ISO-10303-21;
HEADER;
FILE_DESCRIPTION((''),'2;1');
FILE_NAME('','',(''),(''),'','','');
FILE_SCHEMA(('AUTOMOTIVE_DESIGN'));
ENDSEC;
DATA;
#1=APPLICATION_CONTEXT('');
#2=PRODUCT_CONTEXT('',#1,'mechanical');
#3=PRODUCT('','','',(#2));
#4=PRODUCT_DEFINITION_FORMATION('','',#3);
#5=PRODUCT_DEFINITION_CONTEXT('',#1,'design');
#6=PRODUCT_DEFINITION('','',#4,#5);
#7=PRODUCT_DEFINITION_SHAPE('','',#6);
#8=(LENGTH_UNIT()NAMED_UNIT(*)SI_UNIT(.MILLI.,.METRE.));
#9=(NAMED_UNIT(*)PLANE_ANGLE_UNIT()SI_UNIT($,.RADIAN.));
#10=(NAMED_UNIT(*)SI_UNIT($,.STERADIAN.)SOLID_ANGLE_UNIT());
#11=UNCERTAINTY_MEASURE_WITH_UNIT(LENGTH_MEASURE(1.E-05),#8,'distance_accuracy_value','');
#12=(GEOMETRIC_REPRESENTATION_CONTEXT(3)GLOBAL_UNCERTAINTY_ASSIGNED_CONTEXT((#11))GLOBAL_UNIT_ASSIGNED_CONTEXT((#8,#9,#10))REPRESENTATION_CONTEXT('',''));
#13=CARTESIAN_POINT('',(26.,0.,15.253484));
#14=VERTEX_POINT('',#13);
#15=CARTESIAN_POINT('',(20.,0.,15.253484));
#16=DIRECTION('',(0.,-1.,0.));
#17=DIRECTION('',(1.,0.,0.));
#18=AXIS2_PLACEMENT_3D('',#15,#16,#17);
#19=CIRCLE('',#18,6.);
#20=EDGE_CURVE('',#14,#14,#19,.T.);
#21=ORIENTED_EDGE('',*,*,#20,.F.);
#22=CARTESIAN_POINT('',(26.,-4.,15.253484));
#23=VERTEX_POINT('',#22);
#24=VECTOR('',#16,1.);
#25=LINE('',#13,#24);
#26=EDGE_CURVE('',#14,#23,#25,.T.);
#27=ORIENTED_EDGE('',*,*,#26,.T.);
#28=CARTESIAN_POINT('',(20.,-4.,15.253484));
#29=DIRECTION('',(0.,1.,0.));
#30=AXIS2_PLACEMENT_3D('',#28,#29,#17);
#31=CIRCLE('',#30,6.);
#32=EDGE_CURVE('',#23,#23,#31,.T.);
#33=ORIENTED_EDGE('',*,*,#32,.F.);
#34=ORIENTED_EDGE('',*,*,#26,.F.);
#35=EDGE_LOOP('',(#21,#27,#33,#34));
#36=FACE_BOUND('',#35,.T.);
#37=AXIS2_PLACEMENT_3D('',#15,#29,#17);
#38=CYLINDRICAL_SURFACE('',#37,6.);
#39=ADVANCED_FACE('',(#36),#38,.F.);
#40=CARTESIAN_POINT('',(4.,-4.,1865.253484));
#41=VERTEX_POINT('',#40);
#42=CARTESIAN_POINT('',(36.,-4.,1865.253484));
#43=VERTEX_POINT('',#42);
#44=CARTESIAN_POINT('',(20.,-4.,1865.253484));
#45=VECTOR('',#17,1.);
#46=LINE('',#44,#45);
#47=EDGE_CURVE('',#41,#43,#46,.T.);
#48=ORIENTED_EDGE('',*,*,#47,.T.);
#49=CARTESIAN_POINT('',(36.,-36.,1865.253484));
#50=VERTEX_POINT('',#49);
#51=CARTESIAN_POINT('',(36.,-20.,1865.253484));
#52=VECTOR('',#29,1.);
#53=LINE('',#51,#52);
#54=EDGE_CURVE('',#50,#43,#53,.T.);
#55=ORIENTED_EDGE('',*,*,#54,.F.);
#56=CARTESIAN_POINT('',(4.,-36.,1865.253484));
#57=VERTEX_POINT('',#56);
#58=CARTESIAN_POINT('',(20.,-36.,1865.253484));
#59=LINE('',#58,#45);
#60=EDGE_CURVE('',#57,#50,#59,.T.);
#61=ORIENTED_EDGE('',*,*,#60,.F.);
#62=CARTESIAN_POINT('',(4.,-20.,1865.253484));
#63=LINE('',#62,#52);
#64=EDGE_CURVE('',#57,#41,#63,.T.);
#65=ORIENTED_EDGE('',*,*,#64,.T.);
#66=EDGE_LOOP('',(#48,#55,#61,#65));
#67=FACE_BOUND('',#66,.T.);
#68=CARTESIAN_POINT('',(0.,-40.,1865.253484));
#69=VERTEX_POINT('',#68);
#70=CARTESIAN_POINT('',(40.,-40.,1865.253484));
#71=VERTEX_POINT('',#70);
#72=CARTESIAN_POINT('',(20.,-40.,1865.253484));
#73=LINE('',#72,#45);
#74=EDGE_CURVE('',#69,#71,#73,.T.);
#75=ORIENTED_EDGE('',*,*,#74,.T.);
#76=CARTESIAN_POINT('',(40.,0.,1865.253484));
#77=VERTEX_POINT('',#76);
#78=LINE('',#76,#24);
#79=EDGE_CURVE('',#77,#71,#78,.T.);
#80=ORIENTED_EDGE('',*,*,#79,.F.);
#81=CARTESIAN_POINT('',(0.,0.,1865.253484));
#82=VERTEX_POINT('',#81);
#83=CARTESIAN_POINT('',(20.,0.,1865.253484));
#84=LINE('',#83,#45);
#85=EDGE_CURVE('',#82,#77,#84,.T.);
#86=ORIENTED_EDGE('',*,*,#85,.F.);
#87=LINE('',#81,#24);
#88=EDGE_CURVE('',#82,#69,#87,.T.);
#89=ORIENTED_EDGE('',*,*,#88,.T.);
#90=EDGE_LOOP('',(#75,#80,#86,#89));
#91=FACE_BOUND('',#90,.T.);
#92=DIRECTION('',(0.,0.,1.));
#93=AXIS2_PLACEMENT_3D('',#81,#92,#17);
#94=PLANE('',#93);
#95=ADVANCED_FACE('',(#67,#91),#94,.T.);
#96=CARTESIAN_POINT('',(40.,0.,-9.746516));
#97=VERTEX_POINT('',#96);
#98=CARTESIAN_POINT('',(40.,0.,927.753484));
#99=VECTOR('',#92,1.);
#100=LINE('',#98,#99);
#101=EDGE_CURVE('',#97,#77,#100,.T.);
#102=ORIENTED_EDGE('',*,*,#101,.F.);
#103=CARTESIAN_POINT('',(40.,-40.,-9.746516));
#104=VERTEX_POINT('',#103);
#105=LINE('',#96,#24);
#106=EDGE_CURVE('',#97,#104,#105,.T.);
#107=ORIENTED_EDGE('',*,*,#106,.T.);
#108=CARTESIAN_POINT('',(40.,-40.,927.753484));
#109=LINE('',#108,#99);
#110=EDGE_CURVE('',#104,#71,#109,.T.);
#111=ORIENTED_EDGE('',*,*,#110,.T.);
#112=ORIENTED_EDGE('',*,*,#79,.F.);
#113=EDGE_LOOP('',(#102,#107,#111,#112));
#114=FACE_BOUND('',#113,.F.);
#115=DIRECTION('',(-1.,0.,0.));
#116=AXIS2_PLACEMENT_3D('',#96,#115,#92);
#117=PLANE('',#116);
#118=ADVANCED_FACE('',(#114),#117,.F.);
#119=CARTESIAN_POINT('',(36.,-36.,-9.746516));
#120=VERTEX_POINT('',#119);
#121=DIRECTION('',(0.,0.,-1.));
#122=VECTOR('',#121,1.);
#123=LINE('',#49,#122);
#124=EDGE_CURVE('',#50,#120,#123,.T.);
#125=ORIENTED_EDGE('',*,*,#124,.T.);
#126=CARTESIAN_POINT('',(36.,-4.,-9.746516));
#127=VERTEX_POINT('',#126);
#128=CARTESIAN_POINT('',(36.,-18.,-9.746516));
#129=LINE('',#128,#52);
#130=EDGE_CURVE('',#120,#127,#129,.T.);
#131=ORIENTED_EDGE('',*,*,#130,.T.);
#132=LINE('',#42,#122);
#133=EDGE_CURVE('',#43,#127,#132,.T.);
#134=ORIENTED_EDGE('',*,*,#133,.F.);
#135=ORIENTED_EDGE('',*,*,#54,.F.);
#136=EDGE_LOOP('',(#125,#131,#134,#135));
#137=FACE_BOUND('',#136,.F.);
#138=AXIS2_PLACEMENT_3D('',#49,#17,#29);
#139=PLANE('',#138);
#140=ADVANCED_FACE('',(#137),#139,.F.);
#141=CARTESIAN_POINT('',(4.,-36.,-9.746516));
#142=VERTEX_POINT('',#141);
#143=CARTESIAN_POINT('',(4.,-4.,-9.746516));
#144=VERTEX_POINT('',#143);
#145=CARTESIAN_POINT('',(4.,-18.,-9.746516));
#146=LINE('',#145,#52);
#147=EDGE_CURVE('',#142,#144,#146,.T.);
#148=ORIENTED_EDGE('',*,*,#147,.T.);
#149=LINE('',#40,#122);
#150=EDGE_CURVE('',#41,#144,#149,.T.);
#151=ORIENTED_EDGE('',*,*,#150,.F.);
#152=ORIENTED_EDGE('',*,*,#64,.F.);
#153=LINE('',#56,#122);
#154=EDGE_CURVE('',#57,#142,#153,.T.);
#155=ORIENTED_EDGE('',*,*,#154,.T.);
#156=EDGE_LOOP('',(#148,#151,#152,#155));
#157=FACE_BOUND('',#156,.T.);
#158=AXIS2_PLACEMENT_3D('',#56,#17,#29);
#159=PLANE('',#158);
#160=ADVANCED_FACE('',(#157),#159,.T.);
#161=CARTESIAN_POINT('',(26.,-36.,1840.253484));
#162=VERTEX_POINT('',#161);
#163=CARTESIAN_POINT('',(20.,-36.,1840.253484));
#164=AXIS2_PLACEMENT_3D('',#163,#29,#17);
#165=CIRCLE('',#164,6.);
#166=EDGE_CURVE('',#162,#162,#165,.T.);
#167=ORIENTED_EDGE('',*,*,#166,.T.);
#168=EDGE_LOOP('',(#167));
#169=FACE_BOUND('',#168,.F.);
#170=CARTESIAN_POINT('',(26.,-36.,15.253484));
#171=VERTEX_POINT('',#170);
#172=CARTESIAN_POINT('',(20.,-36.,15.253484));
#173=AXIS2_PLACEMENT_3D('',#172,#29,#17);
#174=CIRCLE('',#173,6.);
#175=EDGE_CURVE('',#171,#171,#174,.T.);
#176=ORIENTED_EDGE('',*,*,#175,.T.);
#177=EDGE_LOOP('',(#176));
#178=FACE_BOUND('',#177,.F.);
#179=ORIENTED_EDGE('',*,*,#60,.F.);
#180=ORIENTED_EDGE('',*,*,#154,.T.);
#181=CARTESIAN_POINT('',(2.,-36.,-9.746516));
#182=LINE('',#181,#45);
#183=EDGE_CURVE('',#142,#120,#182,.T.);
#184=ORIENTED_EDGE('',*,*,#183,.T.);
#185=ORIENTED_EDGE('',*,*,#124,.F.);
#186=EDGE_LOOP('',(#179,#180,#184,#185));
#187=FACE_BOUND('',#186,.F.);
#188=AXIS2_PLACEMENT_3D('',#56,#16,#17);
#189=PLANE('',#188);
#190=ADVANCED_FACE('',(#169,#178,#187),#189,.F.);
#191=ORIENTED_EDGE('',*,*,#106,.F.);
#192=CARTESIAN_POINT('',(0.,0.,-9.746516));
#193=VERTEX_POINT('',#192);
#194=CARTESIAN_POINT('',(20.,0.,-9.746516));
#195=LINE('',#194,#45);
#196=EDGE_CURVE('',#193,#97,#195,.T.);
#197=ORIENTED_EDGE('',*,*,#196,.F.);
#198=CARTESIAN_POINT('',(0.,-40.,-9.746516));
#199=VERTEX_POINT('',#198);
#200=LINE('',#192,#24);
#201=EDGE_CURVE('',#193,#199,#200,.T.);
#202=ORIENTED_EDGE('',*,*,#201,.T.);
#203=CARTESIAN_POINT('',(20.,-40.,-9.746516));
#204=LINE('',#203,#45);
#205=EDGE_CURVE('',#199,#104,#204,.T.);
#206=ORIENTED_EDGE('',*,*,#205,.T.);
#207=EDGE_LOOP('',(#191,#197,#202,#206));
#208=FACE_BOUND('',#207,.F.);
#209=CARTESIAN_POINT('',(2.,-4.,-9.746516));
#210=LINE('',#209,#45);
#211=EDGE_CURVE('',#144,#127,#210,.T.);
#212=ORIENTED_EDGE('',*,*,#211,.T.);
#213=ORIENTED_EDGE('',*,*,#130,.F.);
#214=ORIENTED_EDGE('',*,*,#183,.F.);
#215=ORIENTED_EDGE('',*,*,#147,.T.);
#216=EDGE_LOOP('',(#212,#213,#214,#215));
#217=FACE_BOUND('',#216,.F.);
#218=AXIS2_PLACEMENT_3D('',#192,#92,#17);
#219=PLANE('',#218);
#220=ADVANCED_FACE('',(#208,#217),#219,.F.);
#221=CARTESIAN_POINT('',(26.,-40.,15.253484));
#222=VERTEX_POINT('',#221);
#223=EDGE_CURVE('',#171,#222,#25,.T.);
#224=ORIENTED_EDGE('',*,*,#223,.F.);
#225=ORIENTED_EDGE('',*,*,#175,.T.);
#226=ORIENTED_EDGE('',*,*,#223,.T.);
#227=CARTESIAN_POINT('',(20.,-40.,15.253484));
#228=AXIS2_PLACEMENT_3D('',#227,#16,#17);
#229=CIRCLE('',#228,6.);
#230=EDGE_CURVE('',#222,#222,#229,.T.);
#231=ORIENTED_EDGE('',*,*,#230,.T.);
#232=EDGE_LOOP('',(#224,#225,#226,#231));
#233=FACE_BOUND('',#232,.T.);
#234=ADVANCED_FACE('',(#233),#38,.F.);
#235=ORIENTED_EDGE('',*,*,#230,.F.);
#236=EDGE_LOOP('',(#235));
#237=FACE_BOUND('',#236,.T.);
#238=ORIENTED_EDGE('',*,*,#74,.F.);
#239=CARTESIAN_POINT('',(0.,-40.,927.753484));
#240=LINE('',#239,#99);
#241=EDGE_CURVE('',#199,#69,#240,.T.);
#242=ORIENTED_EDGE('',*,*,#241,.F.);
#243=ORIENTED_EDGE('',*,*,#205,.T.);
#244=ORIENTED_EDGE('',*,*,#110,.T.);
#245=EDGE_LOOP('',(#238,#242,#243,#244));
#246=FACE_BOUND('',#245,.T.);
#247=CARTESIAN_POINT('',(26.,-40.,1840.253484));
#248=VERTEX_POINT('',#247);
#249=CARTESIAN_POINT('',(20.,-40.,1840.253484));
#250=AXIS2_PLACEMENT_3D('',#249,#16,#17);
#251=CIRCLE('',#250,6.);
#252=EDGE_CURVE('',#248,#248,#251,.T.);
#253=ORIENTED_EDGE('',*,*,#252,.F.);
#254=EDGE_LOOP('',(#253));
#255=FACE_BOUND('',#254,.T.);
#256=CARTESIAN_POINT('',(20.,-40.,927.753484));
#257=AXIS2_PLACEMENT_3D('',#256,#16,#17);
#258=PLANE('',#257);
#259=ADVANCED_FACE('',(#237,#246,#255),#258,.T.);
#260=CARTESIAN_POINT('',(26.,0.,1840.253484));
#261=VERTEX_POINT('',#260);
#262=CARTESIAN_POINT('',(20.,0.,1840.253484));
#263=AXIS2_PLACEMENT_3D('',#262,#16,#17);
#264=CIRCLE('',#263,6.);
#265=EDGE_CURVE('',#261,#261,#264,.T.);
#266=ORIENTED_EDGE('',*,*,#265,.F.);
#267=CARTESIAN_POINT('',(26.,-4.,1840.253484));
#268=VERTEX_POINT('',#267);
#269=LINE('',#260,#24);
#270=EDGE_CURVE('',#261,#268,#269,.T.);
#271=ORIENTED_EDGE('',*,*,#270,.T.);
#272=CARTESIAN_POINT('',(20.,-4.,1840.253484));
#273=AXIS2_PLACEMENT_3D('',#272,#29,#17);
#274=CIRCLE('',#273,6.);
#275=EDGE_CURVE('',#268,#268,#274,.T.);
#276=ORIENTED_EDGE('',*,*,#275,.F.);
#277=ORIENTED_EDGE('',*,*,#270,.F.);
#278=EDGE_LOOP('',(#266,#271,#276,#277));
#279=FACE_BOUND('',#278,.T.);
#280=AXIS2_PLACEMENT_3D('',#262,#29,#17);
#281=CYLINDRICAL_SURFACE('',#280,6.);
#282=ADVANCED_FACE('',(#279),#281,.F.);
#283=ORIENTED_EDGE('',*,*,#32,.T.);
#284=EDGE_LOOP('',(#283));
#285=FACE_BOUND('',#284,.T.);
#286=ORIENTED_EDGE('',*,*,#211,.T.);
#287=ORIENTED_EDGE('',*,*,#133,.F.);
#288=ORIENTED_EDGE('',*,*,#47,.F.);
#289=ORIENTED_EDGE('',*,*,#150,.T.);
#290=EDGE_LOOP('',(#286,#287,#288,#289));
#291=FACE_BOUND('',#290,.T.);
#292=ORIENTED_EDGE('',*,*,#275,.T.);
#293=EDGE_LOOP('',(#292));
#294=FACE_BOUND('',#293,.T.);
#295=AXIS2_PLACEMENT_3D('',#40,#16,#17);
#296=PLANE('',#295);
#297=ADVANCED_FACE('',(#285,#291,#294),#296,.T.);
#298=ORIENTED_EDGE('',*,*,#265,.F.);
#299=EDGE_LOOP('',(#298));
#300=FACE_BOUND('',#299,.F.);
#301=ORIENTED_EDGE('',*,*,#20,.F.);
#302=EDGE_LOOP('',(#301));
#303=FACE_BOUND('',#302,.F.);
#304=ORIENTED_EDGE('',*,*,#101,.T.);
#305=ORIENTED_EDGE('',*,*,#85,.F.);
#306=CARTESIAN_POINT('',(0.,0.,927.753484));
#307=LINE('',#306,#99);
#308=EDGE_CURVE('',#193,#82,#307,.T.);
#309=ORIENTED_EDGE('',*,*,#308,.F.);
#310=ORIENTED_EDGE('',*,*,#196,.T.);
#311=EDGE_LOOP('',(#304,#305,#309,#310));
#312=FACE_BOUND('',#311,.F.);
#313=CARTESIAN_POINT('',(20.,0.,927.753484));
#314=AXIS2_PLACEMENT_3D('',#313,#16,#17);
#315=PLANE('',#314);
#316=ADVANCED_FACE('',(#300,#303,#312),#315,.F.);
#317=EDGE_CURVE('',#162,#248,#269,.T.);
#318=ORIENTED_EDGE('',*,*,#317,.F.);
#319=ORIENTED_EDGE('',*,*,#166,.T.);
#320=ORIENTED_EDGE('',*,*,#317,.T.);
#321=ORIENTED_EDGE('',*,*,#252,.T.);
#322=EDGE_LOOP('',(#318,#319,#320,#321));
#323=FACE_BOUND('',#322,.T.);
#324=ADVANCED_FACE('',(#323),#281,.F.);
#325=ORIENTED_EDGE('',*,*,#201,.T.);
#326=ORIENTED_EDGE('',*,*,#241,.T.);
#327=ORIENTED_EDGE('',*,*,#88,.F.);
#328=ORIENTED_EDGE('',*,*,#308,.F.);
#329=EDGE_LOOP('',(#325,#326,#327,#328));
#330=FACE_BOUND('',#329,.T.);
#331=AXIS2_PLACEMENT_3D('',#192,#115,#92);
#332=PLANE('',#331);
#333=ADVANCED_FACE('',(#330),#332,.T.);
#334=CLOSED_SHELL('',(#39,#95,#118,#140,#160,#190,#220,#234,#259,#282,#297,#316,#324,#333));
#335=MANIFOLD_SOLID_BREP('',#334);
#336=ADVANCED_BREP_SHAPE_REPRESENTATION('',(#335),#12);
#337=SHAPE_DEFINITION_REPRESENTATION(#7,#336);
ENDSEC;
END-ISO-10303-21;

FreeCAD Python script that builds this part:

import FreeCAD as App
import Part
import Sketcher
from FreeCAD import Vector
Q = App.Units.Quantity


def add_polygon(sketch, points):
    """Adds a closed chain of lines whose ends are joined by coincident constraints."""
    first, n = sketch.GeometryCount, len(points)
    for a, b in zip(points, points[1:] + points[:1]):
        sketch.addGeometry(Part.LineSegment(App.Vector(*a, 0), App.Vector(*b, 0)), False)
    for i in range(n):
        sketch.addConstraint(Sketcher.Constraint("Coincident", first + i, 2, first + (i + 1) % n, 1))

doc = App.newDocument("Part")
body = doc.addObject("PartDesign::Body", "Body")

# Sketch on XZ plane
sketch1 = body.newObject("Sketcher::SketchObject", "Sketch")
sketch1.AttachmentSupport = (doc.getObject("XZ_Plane"), [""])
sketch1.MapMode = "FlatFace"
add_polygon(sketch1, [(0, 1865.253484), (0, -9.746516), (40, -9.746516), (40, 1865.253484)])  # lines 0-3
sketch1.addGeometry(Part.Circle(Vector(20, 15.253484, 0), Vector(0, 0, 1), 6), False)  # 4
sketch1.addGeometry(Part.Circle(Vector(20, 1840.253484, 0), Vector(0, 0, 1), 6), False)  # 5
sketch1.addConstraint([
    Sketcher.Constraint("Vertical", 0),
    Sketcher.Constraint("Horizontal", 1),
    Sketcher.Constraint("Vertical", 2),
    Sketcher.Constraint("Horizontal", 3),
    Sketcher.Constraint("Equal", 4, 5),
    Sketcher.Constraint("PointOnObject", 0, 2, -2),
    Sketcher.Constraint("Vertical", 4, 3, 5, 3),
    Sketcher.Constraint("Diameter", 4, Q("12 mm")),
    Sketcher.Constraint("DistanceX", 1, 1, 1, 2, Q("40 mm")),
    Sketcher.Constraint("DistanceY", 0, 2, 0, 1, Q("1875 mm")),
    Sketcher.Constraint("DistanceX", -1, 1, 4, 3, Q("20 mm")),
    Sketcher.Constraint("DistanceY", 4, 3, 5, 3, Q("1825 mm")),
    Sketcher.Constraint("DistanceY", 0, 2, 4, 3, Q("25 mm")),
    Sketcher.Constraint("DistanceY", -1, 1, 4, 3, Q("15.253484 mm")),
])
pad1 = body.newObject("PartDesign::Pad", "Pad")
pad1.Profile = sketch1
pad1.Length = 40

# Sketch on XY plane
sketch2 = body.newObject("Sketcher::SketchObject", "Sketch001")
sketch2.AttachmentSupport = (doc.getObject("XY_Plane"), [""])
sketch2.MapMode = "FlatFace"
sketch2.AttachmentOffset = App.Placement(Vector(0, 0, 1865.253484), App.Rotation())
add_polygon(sketch2, [(4, -4), (4, -36), (36, -36), (36, -4)])  # lines 0-3
sketch2.addConstraint([
    Sketcher.Constraint("Vertical", 0),
    Sketcher.Constraint("Horizontal", 1),
    Sketcher.Constraint("Vertical", 2),
    Sketcher.Constraint("Horizontal", 3),
    Sketcher.Constraint("Equal", 3, 0),
    Sketcher.Constraint("DistanceX", 1, 1, 1, 2, Q("32 mm")),
    Sketcher.Constraint("DistanceX", -1, 1, 0, 2, Q("4 mm")),
    Sketcher.Constraint("DistanceY", 0, 2, -1, 1, Q("36 mm")),
])
pocket1 = body.newObject("PartDesign::Pocket", "Pocket")
pocket1.Profile = sketch2
pocket1.Type = "ThroughAll"

doc.recompute()
